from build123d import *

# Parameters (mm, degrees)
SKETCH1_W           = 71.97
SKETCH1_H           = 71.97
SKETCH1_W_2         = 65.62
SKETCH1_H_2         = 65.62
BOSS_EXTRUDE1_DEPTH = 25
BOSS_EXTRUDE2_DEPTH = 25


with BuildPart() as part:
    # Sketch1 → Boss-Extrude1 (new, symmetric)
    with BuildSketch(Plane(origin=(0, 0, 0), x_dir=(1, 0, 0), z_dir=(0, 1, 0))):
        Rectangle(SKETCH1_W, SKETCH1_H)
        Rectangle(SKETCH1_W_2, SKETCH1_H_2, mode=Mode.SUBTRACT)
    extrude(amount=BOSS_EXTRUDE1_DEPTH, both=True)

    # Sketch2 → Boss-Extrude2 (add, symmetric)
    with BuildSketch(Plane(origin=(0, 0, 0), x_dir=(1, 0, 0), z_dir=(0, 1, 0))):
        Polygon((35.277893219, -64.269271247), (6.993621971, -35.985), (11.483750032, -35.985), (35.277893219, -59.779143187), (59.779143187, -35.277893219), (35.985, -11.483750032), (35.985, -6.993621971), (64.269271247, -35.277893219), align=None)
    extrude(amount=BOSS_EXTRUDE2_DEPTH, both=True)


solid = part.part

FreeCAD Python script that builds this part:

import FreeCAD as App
import Part
import Sketcher
from FreeCAD import Vector
Q = App.Units.Quantity

doc = App.newDocument("Part")
body = doc.addObject("PartDesign::Body", "Body")

# Sketch on XZ plane
sketch1 = body.newObject("Sketcher::SketchObject", "Sketch")
sketch1.AttachmentSupport = (doc.getObject("XZ_Plane"), [""])
sketch1.MapMode = "FlatFace"
sketch1.addGeometry(Part.LineSegment(Vector(-36, -36, 0), Vector(-36, 36, 0)), False)
sketch1.addGeometry(Part.LineSegment(Vector(-36, 36, 0), Vector(36, 36, 0)), False)
sketch1.addGeometry(Part.LineSegment(Vector(36, 36, 0), Vector(36, -36, 0)), False)
sketch1.addGeometry(Part.LineSegment(Vector(36, -36, 0), Vector(-36, -36, 0)), False)
sketch1.addGeometry(Part.LineSegment(Vector(33, 33, 0), Vector(-33, 33, 0)), False)
sketch1.addGeometry(Part.LineSegment(Vector(-33, 33, 0), Vector(-33, -33, 0)), False)
sketch1.addGeometry(Part.LineSegment(Vector(-33, -33, 0), Vector(33, -33, 0)), False)
sketch1.addGeometry(Part.LineSegment(Vector(33, -33, 0), Vector(33, 33, 0)), False)
sketch1.addConstraint(Sketcher.Constraint("Coincident", 0, 2, 1, 1))
sketch1.addConstraint(Sketcher.Constraint("Coincident", 1, 2, 2, 1))
sketch1.addConstraint(Sketcher.Constraint("Coincident", 2, 2, 3, 1))
sketch1.addConstraint(Sketcher.Constraint("Coincident", 3, 2, 0, 1))
sketch1.addConstraint(Sketcher.Constraint("Coincident", 4, 2, 5, 1))
sketch1.addConstraint(Sketcher.Constraint("Coincident", 5, 2, 6, 1))
sketch1.addConstraint(Sketcher.Constraint("Coincident", 6, 2, 7, 1))
sketch1.addConstraint(Sketcher.Constraint("Coincident", 7, 2, 4, 1))
sketch1.addConstraint(Sketcher.Constraint("Vertical", 0))
sketch1.addConstraint(Sketcher.Constraint("Horizontal", 1))
sketch1.addConstraint(Sketcher.Constraint("Vertical", 2))
sketch1.addConstraint(Sketcher.Constraint("Horizontal", 3))
sketch1.addConstraint(Sketcher.Constraint("Horizontal", 4))
sketch1.addConstraint(Sketcher.Constraint("Vertical", 5))
sketch1.addConstraint(Sketcher.Constraint("Horizontal", 6))
sketch1.addConstraint(Sketcher.Constraint("Vertical", 7))
sketch1.addConstraint(Sketcher.Constraint("Symmetric", 0, 2, 2, 2, -1, 1))
sketch1.addConstraint(Sketcher.Constraint("Symmetric", 4, 2, 6, 2, -1, 1))
sketch1.addConstraint(Sketcher.Constraint("Equal", 3, 0))
sketch1.addConstraint(Sketcher.Constraint("Equal", 6, 5))
sketch1.addConstraint(Sketcher.Constraint("DistanceX", 1, 1, 1, 2, Q("71.97 mm")))
sketch1.addConstraint(Sketcher.Constraint("DistanceX", 4, 2, 4, 1, Q("65.62 mm")))
pad1 = body.newObject("PartDesign::Pad", "Pad")
pad1.Profile = sketch1
pad1.Length = 50
pad1.Midplane = True

# Sketch on XZ plane
sketch2 = body.newObject("Sketcher::SketchObject", "Sketch001")
sketch2.AttachmentSupport = (doc.getObject("XZ_Plane"), [""])
sketch2.MapMode = "FlatFace"
sketch2.addGeometry(Part.LineSegment(Vector(7, 36, 0), Vector(35.3, 64.3, 0)), False)
sketch2.addGeometry(Part.LineSegment(Vector(35.3, 64.3, 0), Vector(64.3, 35.3, 0)), False)
sketch2.addGeometry(Part.LineSegment(Vector(64.3, 35.3, 0), Vector(36, 7, 0)), False)
sketch2.addGeometry(Part.LineSegment(Vector(36, 7, 0), Vector(36, 11.5, 0)), False)
sketch2.addGeometry(Part.LineSegment(Vector(36, 11.5, 0), Vector(59.8, 35.3, 0)), False)
sketch2.addGeometry(Part.LineSegment(Vector(59.8, 35.3, 0), Vector(35.3, 59.8, 0)), False)
sketch2.addGeometry(Part.LineSegment(Vector(35.3, 59.8, 0), Vector(11.5, 36, 0)), False)
sketch2.addGeometry(Part.LineSegment(Vector(11.5, 36, 0), Vector(7, 36, 0)), False)
sketch2.addConstraint(Sketcher.Constraint("Coincident", 0, 2, 1, 1))
sketch2.addConstraint(Sketcher.Constraint("Coincident", 1, 2, 2, 1))
sketch2.addConstraint(Sketcher.Constraint("Coincident", 2, 2, 3, 1))
sketch2.addConstraint(Sketcher.Constraint("Coincident", 3, 2, 4, 1))
sketch2.addConstraint(Sketcher.Constraint("Coincident", 4, 2, 5, 1))
sketch2.addConstraint(Sketcher.Constraint("Coincident", 5, 2, 6, 1))
sketch2.addConstraint(Sketcher.Constraint("Coincident", 6, 2, 7, 1))
sketch2.addConstraint(Sketcher.Constraint("Coincident", 7, 2, 0, 1))
sketch2.addConstraint(Sketcher.Constraint("Vertical", 3))
sketch2.addConstraint(Sketcher.Constraint("Horizontal", 7))
sketch2.addConstraint(Sketcher.Constraint("Perpendicular", 0, 1))
sketch2.addConstraint(Sketcher.Constraint("Perpendicular", 1, 2))
sketch2.addConstraint(Sketcher.Constraint("Parallel", 2, 4))
sketch2.addConstraint(Sketcher.Constraint("Perpendicular", 4, 5))
sketch2.addConstraint(Sketcher.Constraint("Perpendicular", 5, 6))
sketch2.addConstraint(Sketcher.Constraint("Horizontal", 1, 2, 4, 2))
sketch2.addConstraint(Sketcher.Constraint("Vertical", 0, 2, 5, 2))
sketch2.addConstraint(Sketcher.Constraint("Equal", 7, 3))
sketch2.addConstraint(Sketcher.Constraint("Equal", 0, 2))
sketch2.addConstraint(Sketcher.Constraint("Distance", 0, Q("40 mm")))
sketch2.addConstraint(Sketcher.Constraint("Distance", 1, Q("41 mm")))
sketch2.addConstraint(Sketcher.Constraint("Distance", 4, Q("33.65 mm")))
sketch2.addConstraint(Sketcher.Constraint("DistanceX", -1, 1, 2, 2, Q("35.985 mm")))
sketch2.addConstraint(Sketcher.Constraint("DistanceY", -1, 1, 6, 2, Q("35.985 mm")))
pad2 = body.newObject("PartDesign::Pad", "Pad001")
pad2.Profile = sketch2
pad2.Length = 50
pad2.Midplane = True

doc.recompute()
